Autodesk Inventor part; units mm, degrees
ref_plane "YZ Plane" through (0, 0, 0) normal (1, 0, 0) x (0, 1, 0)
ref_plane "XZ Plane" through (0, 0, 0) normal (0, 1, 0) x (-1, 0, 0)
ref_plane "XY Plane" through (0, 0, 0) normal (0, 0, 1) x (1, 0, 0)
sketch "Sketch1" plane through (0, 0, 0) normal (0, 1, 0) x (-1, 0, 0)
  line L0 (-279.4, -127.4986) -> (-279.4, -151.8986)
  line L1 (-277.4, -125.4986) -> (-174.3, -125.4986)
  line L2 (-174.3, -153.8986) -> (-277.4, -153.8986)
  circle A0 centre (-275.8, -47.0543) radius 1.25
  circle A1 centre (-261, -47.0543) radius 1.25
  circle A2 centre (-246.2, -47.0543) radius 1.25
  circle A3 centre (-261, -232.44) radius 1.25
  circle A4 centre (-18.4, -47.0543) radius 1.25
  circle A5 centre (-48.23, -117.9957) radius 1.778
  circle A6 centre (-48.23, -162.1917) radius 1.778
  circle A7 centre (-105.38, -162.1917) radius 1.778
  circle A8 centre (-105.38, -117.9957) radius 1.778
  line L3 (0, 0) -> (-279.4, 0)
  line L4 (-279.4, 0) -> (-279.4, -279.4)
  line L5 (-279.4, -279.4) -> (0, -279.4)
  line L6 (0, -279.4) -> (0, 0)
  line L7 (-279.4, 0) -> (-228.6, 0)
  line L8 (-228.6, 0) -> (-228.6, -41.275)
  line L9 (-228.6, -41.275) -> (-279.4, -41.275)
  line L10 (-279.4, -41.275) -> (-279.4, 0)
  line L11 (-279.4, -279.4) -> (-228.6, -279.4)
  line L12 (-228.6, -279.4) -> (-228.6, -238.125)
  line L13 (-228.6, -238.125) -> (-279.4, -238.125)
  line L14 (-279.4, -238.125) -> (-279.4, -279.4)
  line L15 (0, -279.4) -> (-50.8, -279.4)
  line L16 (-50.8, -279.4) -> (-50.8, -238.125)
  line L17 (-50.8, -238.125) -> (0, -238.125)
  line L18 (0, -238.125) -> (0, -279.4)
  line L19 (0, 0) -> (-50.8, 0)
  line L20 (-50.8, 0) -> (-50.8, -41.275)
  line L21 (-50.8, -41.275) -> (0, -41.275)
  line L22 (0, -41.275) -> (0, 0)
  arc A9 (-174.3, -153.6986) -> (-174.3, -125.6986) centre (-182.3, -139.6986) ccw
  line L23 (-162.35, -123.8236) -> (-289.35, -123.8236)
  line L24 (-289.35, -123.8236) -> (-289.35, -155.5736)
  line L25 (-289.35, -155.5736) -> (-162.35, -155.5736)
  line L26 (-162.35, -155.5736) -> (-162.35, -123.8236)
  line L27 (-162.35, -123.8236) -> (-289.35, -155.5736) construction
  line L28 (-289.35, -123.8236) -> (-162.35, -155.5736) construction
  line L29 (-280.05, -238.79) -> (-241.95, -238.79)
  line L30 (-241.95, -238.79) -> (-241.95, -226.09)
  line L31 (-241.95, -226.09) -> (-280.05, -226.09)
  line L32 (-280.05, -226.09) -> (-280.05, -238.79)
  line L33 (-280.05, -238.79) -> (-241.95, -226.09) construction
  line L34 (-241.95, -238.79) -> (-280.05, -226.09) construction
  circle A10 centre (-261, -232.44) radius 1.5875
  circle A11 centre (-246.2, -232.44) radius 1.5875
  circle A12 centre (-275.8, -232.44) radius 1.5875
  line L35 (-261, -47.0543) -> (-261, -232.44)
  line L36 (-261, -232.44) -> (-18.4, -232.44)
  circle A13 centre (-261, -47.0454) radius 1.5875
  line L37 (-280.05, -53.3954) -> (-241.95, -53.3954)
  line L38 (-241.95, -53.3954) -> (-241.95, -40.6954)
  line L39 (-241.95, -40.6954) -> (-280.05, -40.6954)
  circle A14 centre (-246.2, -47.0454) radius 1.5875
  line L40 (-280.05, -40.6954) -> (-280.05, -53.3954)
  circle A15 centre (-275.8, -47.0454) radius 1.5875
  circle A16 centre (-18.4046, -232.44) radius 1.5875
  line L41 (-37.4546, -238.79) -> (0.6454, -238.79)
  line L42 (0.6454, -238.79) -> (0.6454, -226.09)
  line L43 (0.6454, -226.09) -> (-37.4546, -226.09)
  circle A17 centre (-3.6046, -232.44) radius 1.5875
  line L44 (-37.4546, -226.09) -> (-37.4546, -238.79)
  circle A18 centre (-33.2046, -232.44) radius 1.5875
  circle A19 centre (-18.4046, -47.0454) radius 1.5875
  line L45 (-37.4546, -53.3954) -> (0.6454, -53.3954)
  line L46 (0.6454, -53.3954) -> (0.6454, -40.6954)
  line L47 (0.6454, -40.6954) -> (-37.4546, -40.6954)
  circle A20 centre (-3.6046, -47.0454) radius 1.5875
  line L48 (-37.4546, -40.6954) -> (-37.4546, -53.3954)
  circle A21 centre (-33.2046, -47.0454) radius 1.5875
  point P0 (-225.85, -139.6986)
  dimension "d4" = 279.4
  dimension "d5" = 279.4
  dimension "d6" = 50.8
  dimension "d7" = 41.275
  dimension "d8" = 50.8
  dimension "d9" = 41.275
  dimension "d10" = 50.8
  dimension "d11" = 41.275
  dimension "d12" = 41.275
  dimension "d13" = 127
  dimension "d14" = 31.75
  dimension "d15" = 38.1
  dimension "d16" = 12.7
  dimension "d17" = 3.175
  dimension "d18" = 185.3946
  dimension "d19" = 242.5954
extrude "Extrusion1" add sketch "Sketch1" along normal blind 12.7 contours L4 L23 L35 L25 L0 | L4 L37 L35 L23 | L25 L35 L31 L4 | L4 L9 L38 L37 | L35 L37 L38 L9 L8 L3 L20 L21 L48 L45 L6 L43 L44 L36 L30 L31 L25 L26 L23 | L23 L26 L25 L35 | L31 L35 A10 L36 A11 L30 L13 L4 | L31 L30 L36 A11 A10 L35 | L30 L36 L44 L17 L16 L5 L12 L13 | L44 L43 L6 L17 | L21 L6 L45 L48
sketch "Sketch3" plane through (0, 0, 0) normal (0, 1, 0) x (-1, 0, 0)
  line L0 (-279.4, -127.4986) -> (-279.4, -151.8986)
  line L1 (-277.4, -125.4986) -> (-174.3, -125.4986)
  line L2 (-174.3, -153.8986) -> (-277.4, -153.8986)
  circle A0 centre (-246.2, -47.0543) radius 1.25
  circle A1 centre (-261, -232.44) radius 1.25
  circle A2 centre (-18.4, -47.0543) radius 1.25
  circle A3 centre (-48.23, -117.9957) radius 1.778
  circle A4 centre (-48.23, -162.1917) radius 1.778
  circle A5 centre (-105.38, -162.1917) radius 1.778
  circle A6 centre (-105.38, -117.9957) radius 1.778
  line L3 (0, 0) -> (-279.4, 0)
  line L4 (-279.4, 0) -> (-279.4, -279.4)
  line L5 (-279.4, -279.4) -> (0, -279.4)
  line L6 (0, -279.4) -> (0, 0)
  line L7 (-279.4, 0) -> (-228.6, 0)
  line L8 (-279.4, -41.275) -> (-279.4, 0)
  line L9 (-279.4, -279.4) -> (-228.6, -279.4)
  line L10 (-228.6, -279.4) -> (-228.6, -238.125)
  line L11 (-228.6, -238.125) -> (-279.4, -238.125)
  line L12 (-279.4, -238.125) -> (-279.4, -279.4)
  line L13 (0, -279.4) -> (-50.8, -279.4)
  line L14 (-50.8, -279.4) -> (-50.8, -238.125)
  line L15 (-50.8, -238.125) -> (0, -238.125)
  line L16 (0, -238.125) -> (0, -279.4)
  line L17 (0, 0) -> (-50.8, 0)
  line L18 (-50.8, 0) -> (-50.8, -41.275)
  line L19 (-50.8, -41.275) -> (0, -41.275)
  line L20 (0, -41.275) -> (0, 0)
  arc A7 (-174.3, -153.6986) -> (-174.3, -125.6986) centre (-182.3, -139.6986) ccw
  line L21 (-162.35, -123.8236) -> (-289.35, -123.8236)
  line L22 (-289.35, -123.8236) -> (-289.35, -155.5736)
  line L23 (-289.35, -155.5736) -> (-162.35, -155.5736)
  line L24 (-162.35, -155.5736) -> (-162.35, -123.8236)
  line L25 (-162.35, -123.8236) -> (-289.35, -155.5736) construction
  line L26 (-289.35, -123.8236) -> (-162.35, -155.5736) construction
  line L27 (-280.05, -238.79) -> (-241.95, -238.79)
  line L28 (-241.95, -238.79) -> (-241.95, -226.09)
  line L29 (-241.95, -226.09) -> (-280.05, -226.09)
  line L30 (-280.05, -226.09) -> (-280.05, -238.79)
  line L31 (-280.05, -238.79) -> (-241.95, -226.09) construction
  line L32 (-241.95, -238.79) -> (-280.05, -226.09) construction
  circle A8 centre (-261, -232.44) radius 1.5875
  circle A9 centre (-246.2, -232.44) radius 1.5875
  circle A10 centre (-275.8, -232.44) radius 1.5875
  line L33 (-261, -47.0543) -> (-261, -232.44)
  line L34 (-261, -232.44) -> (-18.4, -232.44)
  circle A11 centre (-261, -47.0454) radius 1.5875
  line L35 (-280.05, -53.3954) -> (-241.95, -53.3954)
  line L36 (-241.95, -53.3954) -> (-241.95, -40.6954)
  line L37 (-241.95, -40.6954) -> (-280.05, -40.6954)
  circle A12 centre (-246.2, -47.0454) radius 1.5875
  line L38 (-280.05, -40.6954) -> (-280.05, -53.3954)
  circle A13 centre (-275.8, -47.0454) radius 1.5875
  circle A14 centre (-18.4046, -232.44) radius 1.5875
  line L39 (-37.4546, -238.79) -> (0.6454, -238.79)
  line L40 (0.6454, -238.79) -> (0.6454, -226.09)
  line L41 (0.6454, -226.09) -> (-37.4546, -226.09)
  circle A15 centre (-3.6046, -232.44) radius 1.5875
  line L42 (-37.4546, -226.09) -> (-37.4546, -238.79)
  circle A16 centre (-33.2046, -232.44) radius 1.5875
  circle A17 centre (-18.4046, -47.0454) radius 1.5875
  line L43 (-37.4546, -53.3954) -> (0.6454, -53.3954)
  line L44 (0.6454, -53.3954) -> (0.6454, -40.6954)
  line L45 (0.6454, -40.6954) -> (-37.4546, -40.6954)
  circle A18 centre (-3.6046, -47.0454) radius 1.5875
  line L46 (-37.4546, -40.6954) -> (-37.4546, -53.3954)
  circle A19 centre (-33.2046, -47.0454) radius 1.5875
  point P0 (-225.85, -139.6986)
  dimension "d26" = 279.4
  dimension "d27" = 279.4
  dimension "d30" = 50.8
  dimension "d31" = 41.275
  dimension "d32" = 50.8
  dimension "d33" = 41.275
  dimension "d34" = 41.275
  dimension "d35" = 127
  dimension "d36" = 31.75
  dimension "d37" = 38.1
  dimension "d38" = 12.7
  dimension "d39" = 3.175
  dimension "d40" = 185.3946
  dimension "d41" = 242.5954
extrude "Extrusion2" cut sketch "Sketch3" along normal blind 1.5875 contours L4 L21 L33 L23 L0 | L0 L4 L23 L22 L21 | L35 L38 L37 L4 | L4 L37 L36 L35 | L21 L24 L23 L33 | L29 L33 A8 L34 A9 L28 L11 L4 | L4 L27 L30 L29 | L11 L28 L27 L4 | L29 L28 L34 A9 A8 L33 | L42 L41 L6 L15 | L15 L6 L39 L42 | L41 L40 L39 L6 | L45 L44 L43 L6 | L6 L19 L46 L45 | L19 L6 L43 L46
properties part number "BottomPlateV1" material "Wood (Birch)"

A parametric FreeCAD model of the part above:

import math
import FreeCAD as App
import Part
import Sketcher

V = App.Vector
Q = App.Units.Quantity


def add_polygon(sketch, points):
    """Adds a closed chain of lines whose ends are joined by coincident constraints."""
    first, n = sketch.GeometryCount, len(points)
    for a, b in zip(points, points[1:] + points[:1]):
        sketch.addGeometry(Part.LineSegment(App.Vector(*a, 0), App.Vector(*b, 0)), False)
    for i in range(n):
        sketch.addConstraint(Sketcher.Constraint("Coincident", first + i, 2, first + (i + 1) % n, 1))

doc = App.newDocument("Part")
body = doc.addObject("PartDesign::Body", "Body")

sketch1 = body.newObject("Sketcher::SketchObject", "Sketch")
sketch1.AttachmentSupport = (doc.getObject("XZ_Plane"), [""])
sketch1.MapMode = "FlatFace"
add_polygon(sketch1, [(279.4, -238.1), (228.6, -238.1), (228.6, -279.4), (50.8, -279.4), (50.8, -238.1), (0, -238.1), (0, -41.3), (50.8, -41.3), (50.8, 0), (228.6, 0), (228.6, -41.3), (279.4, -41.3)])
sketch1.addGeometry(Part.Circle(V(275.8, -47, 0), V(0, 0, 1), 1.6), False)
sketch1.addGeometry(Part.Circle(V(261, -47, 0), V(0, 0, 1), 1.6), False)
sketch1.addGeometry(Part.Circle(V(246.2, -47, 0), V(0, 0, 1), 1.6), False)
sketch1.addGeometry(Part.Circle(V(48.2, -118, 0), V(0, 0, 1), 1.8), False)
sketch1.addGeometry(Part.Circle(V(105.4, -162.2, 0), V(0, 0, 1), 1.8), False)
sketch1.addGeometry(Part.Circle(V(48.2, -162.2, 0), V(0, 0, 1), 1.8), False)
sketch1.addGeometry(Part.Circle(V(105.4, -118, 0), V(0, 0, 1), 1.8), False)
sketch1.addGeometry(Part.Circle(V(275.8, -232.4, 0), V(0, 0, 1), 1.6), False)
sketch1.addGeometry(Part.Circle(V(261, -232.4, 0), V(0, 0, 1), 1.6), False)
sketch1.addGeometry(Part.Circle(V(246.2, -232.4, 0), V(0, 0, 1), 1.6), False)
sketch1.addGeometry(Part.Circle(V(18.4, -47, 0), V(0, 0, 1), 1.6), False)
sketch1.addGeometry(Part.Circle(V(3.6, -47, 0), V(0, 0, 1), 1.6), False)
sketch1.addGeometry(Part.Circle(V(33.2, -47, 0), V(0, 0, 1), 1.6), False)
sketch1.addGeometry(Part.ArcOfCircle(Part.Circle(V(33.2, -232.4, 0), V(0, 0, 1), 1.6), math.radians(180), math.radians(360)), False)
sketch1.addGeometry(Part.ArcOfCircle(Part.Circle(V(33.2, -232.4, 0), V(0, 0, 1), 1.6), math.radians(0), math.radians(180)), False)
sketch1.addGeometry(Part.Circle(V(18.4, -232.4, 0), V(0, 0, 1), 1.6), False)
sketch1.addGeometry(Part.Circle(V(3.6, -232.4, 0), V(0, 0, 1), 1.6), False)
sketch1.addConstraint([
    Sketcher.Constraint("Tangent", 25, 1, 26, 2),
    Sketcher.Constraint("Coincident", 26, 1, 25, 2),
    Sketcher.Constraint("Horizontal", 0),
    Sketcher.Constraint("Vertical", 1),
    Sketcher.Constraint("Horizontal", 2),
    Sketcher.Constraint("Vertical", 3),
    Sketcher.Constraint("Horizontal", 4),
    Sketcher.Constraint("Vertical", 5),
    Sketcher.Constraint("Horizontal", 6),
    Sketcher.Constraint("Vertical", 7),
    Sketcher.Constraint("Horizontal", 8),
    Sketcher.Constraint("Vertical", 9),
    Sketcher.Constraint("Horizontal", 10),
    Sketcher.Constraint("Vertical", 11),
    Sketcher.Constraint("Equal", 12, 13),
    Sketcher.Constraint("Equal", 13, 14),
    Sketcher.Constraint("Equal", 15, 16),
    Sketcher.Constraint("Equal", 16, 17),
    Sketcher.Constraint("Equal", 17, 18),
    Sketcher.Constraint("Equal", 14, 19),
    Sketcher.Constraint("Equal", 19, 20),
    Sketcher.Constraint("Equal", 20, 21),
    Sketcher.Constraint("Equal", 21, 22),
    Sketcher.Constraint("Equal", 22, 23),
    Sketcher.Constraint("Equal", 23, 24),
    Sketcher.Constraint("Equal", 24, 25),
    Sketcher.Constraint("Equal", 26, 27),
    Sketcher.Constraint("Equal", 27, 28),
    Sketcher.Constraint("PointOnObject", 4, 2, -2),
    Sketcher.Constraint("PointOnObject", 7, 2, -1),
    Sketcher.Constraint("Horizontal", 12, 3, 13, 3),
    Sketcher.Constraint("Horizontal", 13, 3, 14, 3),
    Sketcher.Constraint("Horizontal", 16, 3, 17, 3),
    Sketcher.Constraint("Horizontal", 15, 3, 18, 3),
    Sketcher.Constraint("Horizontal", 19, 3, 20, 3),
    Sketcher.Constraint("Horizontal", 20, 3, 21, 3),
    Sketcher.Constraint("Horizontal", 14, 3, 22, 3),
    Sketcher.Constraint("Horizontal", 22, 3, 23, 3),
    Sketcher.Constraint("Horizontal", 23, 3, 24, 3),
    Sketcher.Constraint("Horizontal", 21, 3, 25, 3),
    Sketcher.Constraint("Horizontal", 26, 3, 27, 3),
    Sketcher.Constraint("Horizontal", 27, 3, 28, 3),
    Sketcher.Constraint("Horizontal", 0, 2, 3, 2),
    Sketcher.Constraint("Horizontal", 6, 2, 9, 2),
    Sketcher.Constraint("Horizontal", 28, 3, 25, 1),
    Sketcher.Constraint("Horizontal", 25, 1, 26, 1),
    Sketcher.Constraint("Vertical", 15, 3, 17, 3),
    Sketcher.Constraint("Vertical", 16, 3, 18, 3),
    Sketcher.Constraint("Vertical", 12, 3, 19, 3),
    Sketcher.Constraint("Vertical", 13, 3, 20, 3),
    Sketcher.Constraint("Vertical", 14, 3, 21, 3),
    Sketcher.Constraint("Vertical", 24, 3, 25, 3),
    Sketcher.Constraint("Vertical", 22, 3, 27, 3),
    Sketcher.Constraint("Vertical", 23, 3, 28, 3),
    Sketcher.Constraint("Vertical", 3, 2, 6, 2),
    Sketcher.Constraint("Vertical", 1, 2, 8, 2),
    Sketcher.Constraint("Equal", 0, 4),
    Sketcher.Constraint("Equal", 3, 7),
    Sketcher.Constraint("DistanceX", 0, 2, 0, 1, Q("2 in")),
    Sketcher.Constraint("Diameter", 12, Q("0.125 in")),
    Sketcher.Constraint("DistanceY", 1, 2, -1, 1, Q("11 in")),
    Sketcher.Constraint("DistanceX", -1, 1, 10, 2, Q("11 in")),
    Sketcher.Constraint("Diameter", 15, Q("0.14 in")),
    Sketcher.Constraint("DistanceY", 1, 2, 1, 1, Q("1.625 in")),
    Sketcher.Constraint("DistanceY", 19, 3, 12, 3, Q("7.299 in")),
    Sketcher.Constraint("DistanceX", 15, 3, 16, 3, Q("2.25 in")),
    Sketcher.Constraint("DistanceY", 16, 3, 15, 3, Q("1.74 in")),
    Sketcher.Constraint("DistanceX", -1, 1, 13, 3, Q("10.2756 in")),
    Sketcher.Constraint("DistanceY", 15, 3, -1, 1, Q("4.6455 in")),
    Sketcher.Constraint("DistanceX", -1, 1, 22, 3, Q("0.7246 in")),
    Sketcher.Constraint("DistanceX", 15, 3, 14, 3, Q("7.7941 in")),
    Sketcher.Constraint("DistanceX", 23, 3, 15, 3, Q("1.7569 in")),
    Sketcher.Constraint("DistanceX", -1, 1, 12, 3, 275.8),
    Sketcher.Constraint("DistanceY", 12, 3, -1, 1, 47.0454),
    Sketcher.Constraint("DistanceX", -1, 1, 14, 3, 246.2),
    Sketcher.Constraint("DistanceX", -1, 1, 24, 3, 33.2046),
])
pad1 = body.newObject("PartDesign::Pad", "Pad")
pad1.Profile = sketch1
pad1.Length = Q("0.5 in")
pad1.Reversed = True

sketch2 = body.newObject("Sketcher::SketchObject", "Sketch001")
sketch2.AttachmentSupport = (doc.getObject("XZ_Plane"), [""])
sketch2.MapMode = "FlatFace"
add_polygon(sketch2, [(289.4, -123.8), (289.4, -155.6), (162.3, -155.6), (162.3, -123.8)])
add_polygon(sketch2, [(280.1, -53.4), (261, -53.4), (241.9, -53.4), (241.9, -40.7), (280.1, -40.7)])
sketch2.addGeometry(Part.Circle(V(246.2, -47, 0), V(0, 0, 1), 1.6), False)
sketch2.addGeometry(Part.Circle(V(275.8, -47, 0), V(0, 0, 1), 1.6), False)
sketch2.addGeometry(Part.Circle(V(261, -47, 0), V(0, 0, 1), 1.6), False)
add_polygon(sketch2, [(280.1, -226.1), (280.1, -238.8), (241.9, -238.8), (241.9, -226.1)])
sketch2.addGeometry(Part.Circle(V(261, -232.4, 0), V(0, 0, 1), 1.6), False)
sketch2.addGeometry(Part.Circle(V(246.2, -232.4, 0), V(0, 0, 1), 1.6), False)
sketch2.addGeometry(Part.Circle(V(275.8, -232.4, 0), V(0, 0, 1), 1.6), False)
add_polygon(sketch2, [(37.5, -226.1), (37.5, -232.4), (37.5, -238.8), (-0.6, -238.8), (-0.6, -226.1)])
sketch2.addGeometry(Part.ArcOfCircle(Part.Circle(V(33.2, -232.4, 0), V(0, 0, 1), 1.6), math.radians(180), math.radians(360)), False)
sketch2.addGeometry(Part.ArcOfCircle(Part.Circle(V(33.2, -232.4, 0), V(0, 0, 1), 1.6), math.radians(0), math.radians(180)), False)
sketch2.addGeometry(Part.Circle(V(18.4, -232.4, 0), V(0, 0, 1), 1.6), False)
sketch2.addGeometry(Part.Circle(V(3.6, -232.4, 0), V(0, 0, 1), 1.6), False)
add_polygon(sketch2, [(-0.6, -40.7), (37.5, -40.7), (37.5, -53.4), (-0.6, -53.4)])
sketch2.addGeometry(Part.Circle(V(3.6, -47, 0), V(0, 0, 1), 1.6), False)
sketch2.addGeometry(Part.Circle(V(33.2, -47, 0), V(0, 0, 1), 1.6), False)
sketch2.addGeometry(Part.Circle(V(18.4, -47, 0), V(0, 0, 1), 1.6), False)
sketch2.addConstraint([
    Sketcher.Constraint("Tangent", 24, 1, 25, 2),
    Sketcher.Constraint("Coincident", 25, 1, 24, 2),
    Sketcher.Constraint("Vertical", 0),
    Sketcher.Constraint("Horizontal", 1),
    Sketcher.Constraint("Vertical", 2),
    Sketcher.Constraint("Horizontal", 3),
    Sketcher.Constraint("Horizontal", 4),
    Sketcher.Constraint("Horizontal", 5),
    Sketcher.Constraint("Vertical", 6),
    Sketcher.Constraint("Horizontal", 7),
    Sketcher.Constraint("Vertical", 8),
    Sketcher.Constraint("Vertical", 12),
    Sketcher.Constraint("Horizontal", 13),
    Sketcher.Constraint("Vertical", 14),
    Sketcher.Constraint("Horizontal", 15),
    Sketcher.Constraint("Vertical", 19),
    Sketcher.Constraint("Vertical", 20),
    Sketcher.Constraint("Horizontal", 21),
    Sketcher.Constraint("Vertical", 22),
    Sketcher.Constraint("Horizontal", 23),
    Sketcher.Constraint("Horizontal", 28),
    Sketcher.Constraint("Vertical", 29),
    Sketcher.Constraint("Horizontal", 30),
    Sketcher.Constraint("Vertical", 31),
    Sketcher.Constraint("Equal", 9, 10),
    Sketcher.Constraint("Equal", 10, 11),
    Sketcher.Constraint("Equal", 11, 16),
    Sketcher.Constraint("Equal", 16, 17),
    Sketcher.Constraint("Equal", 17, 18),
    Sketcher.Constraint("Equal", 18, 24),
    Sketcher.Constraint("Equal", 25, 26),
    Sketcher.Constraint("Equal", 26, 27),
    Sketcher.Constraint("Equal", 27, 32),
    Sketcher.Constraint("Equal", 32, 33),
    Sketcher.Constraint("Equal", 33, 34),
    Sketcher.Constraint("Horizontal", 9, 3, 10, 3),
    Sketcher.Constraint("Horizontal", 10, 3, 11, 3),
    Sketcher.Constraint("Horizontal", 16, 3, 17, 3),
    Sketcher.Constraint("Horizontal", 17, 3, 18, 3),
    Sketcher.Constraint("Horizontal", 18, 3, 24, 3),
    Sketcher.Constraint("Horizontal", 25, 3, 26, 3),
    Sketcher.Constraint("Horizontal", 26, 3, 27, 3),
    Sketcher.Constraint("Horizontal", 11, 3, 32, 3),
    Sketcher.Constraint("Horizontal", 32, 3, 33, 3),
    Sketcher.Constraint("Horizontal", 33, 3, 34, 3),
    Sketcher.Constraint("Horizontal", 27, 3, 19, 2),
    Sketcher.Constraint("Horizontal", 13, 2, 20, 2),
    Sketcher.Constraint("Horizontal", 15, 2, 22, 2),
    Sketcher.Constraint("Horizontal", 19, 2, 24, 1),
    Sketcher.Constraint("Horizontal", 24, 1, 25, 1),
    Sketcher.Constraint("Horizontal", 7, 2, 28, 2),
    Sketcher.Constraint("Horizontal", 8, 2, 29, 2),
    Sketcher.Constraint("Vertical", 11, 3, 16, 3),
    Sketcher.Constraint("Vertical", 9, 3, 17, 3),
    Sketcher.Constraint("Vertical", 10, 3, 18, 3),
    Sketcher.Constraint("Vertical", 27, 3, 32, 3),
    Sketcher.Constraint("Vertical", 25, 3, 33, 3),
    Sketcher.Constraint("Vertical", 26, 3, 34, 3),
    Sketcher.Constraint("Vertical", 16, 3, 4, 2),
    Sketcher.Constraint("Vertical", 8, 2, 12, 2),
    Sketcher.Constraint("Vertical", 6, 2, 13, 2),
    Sketcher.Constraint("Vertical", 23, 2, 28, 2),
    Sketcher.Constraint("Vertical", 22, 2, 30, 2),
    Sketcher.Constraint("Equal", 4, 5),
    Sketcher.Constraint("Equal", 15, 21),
    Sketcher.Constraint("Equal", 8, 12),
    Sketcher.Constraint("Equal", 19, 20),
    Sketcher.Constraint("DistanceX", 1, 2, 1, 1, Q("5 in")),
    Sketcher.Constraint("Diameter", 9, Q("0.125 in")),
    Sketcher.Constraint("DistanceX", 7, 1, 7, 2, Q("1.5 in")),
    Sketcher.Constraint("DistanceY", 6, 1, 6, 2, Q("0.5 in")),
    Sketcher.Constraint("DistanceY", 0, 2, 0, 1, Q("1.25 in")),
    Sketcher.Constraint("DistanceY", 16, 3, 11, 3, Q("7.299 in")),
    Sketcher.Constraint("DistanceX", 24, 3, 18, 3, Q("9.551 in")),
    Sketcher.Constraint("DistanceX", 26, 3, 16, 3, Q("9.551 in")),
    Sketcher.Constraint("DistanceX", 27, 3, 17, 3, Q("9.551 in")),
    Sketcher.Constraint("DistanceY", 4, 2, 11, 3, Q("0.25 in")),
    Sketcher.Constraint("DistanceX", 26, 3, 19, 2, Q("0.75 in")),
    Sketcher.Constraint("DistanceX", -1, 1, 11, 3, Q("10.2756 in")),
    Sketcher.Constraint("DistanceX", -1, 1, 9, 3, 246.2),
    Sketcher.Constraint("DistanceY", 9, 3, -1, 1, 47.0454),
    Sketcher.Constraint("DistanceX", -1, 1, 10, 3, 275.8),
    Sketcher.Constraint("DistanceX", -1, 1, 0, 2, 289.35),
    Sketcher.Constraint("DistanceY", 0, 2, -1, 1, 155.5736),
])
pocket1 = body.newObject("PartDesign::Pocket", "Pocket")
pocket1.Profile = sketch2
pocket1.Length = Q("0.0625 in")

doc.recompute()
